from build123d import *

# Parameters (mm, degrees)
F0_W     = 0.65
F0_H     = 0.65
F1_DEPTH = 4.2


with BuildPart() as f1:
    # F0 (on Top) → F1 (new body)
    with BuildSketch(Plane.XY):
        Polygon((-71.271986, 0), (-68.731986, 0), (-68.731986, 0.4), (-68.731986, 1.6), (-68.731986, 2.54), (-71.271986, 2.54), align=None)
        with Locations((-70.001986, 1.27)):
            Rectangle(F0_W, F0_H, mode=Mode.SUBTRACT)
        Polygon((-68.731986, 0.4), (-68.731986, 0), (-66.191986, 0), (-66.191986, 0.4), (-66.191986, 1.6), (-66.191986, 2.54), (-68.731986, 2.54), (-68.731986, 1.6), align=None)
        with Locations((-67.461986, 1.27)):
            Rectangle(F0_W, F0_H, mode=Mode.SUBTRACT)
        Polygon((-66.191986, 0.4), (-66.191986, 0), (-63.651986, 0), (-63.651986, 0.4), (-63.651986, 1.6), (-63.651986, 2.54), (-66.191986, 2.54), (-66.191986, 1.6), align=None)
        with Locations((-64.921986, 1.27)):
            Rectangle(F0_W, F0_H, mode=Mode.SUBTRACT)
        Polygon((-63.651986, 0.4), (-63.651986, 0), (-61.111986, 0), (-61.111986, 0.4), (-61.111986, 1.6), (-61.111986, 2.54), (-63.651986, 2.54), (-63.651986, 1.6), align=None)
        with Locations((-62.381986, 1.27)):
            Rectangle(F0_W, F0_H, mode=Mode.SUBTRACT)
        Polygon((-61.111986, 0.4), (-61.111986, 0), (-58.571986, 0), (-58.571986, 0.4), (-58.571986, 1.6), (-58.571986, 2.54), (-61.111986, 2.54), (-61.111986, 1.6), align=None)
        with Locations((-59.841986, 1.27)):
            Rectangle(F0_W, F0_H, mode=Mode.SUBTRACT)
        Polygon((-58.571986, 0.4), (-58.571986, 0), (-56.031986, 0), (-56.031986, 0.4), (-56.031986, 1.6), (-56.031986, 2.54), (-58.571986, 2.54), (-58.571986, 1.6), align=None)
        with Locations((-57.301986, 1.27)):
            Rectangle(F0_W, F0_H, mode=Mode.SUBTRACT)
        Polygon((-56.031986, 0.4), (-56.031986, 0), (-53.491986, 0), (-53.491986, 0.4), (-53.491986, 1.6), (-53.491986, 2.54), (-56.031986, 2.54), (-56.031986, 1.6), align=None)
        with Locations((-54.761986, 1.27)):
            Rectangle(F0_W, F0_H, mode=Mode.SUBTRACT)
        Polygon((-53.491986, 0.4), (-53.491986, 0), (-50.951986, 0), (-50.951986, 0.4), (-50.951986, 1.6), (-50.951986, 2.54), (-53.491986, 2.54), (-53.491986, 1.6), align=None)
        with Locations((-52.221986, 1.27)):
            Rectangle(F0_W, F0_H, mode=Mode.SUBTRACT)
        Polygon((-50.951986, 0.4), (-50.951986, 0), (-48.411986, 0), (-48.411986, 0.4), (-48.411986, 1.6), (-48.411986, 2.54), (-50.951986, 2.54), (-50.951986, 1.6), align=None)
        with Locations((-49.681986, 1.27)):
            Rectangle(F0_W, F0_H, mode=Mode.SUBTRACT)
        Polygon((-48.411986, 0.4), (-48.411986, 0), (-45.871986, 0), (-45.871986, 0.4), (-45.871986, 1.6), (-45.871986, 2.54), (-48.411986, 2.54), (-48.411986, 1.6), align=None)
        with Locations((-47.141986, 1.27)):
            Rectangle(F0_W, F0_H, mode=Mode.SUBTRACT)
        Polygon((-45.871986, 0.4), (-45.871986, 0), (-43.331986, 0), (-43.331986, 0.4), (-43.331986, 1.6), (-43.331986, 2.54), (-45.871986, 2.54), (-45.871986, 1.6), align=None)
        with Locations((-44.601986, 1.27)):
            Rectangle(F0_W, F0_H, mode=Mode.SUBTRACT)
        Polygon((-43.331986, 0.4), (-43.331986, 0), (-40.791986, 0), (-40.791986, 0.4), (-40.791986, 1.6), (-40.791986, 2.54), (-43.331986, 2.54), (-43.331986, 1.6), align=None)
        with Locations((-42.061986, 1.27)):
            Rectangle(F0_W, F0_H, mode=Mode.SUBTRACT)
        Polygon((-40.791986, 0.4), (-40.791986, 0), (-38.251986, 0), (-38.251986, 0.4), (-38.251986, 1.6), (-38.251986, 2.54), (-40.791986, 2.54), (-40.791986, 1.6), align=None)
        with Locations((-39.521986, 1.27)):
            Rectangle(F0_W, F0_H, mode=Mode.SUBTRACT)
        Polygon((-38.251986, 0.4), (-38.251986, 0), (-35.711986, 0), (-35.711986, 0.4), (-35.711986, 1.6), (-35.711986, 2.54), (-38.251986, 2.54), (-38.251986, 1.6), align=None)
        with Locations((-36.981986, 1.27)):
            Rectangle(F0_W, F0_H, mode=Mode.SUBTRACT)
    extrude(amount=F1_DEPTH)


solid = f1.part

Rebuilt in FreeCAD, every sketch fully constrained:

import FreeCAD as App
import Part
import Sketcher
from FreeCAD import Vector
Q = App.Units.Quantity

doc = App.newDocument("Part")
params = doc.addObject("Spreadsheet::Sheet", "Params")
for row, (alias, value) in enumerate([
    ("sketch1_width", "1.4 in"),
    ("sketch1_height", "0.1 in"),
    ("pad1_length", "4.2 mm"),
], start=1):
    params.set(f"A{row}", alias)
    params.set(f"B{row}", "=" + value)
    params.setAlias(f"B{row}", alias)

body = doc.addObject("PartDesign::Body", "Body")

# Sketch on XY plane
sketch1 = body.newObject("Sketcher::SketchObject", "Sketch")
sketch1.AttachmentSupport = (doc.getObject("XY_Plane"), [""])
sketch1.MapMode = "FlatFace"
sketch1.addGeometry([
    Part.LineSegment(Vector(-71.3, 0, 0), Vector(-35.7, 0, 0)),  # 0
    Part.LineSegment(Vector(-35.7, 0, 0), Vector(-35.7, 2.5, 0)),  # 1
    Part.LineSegment(Vector(-35.7, 2.5, 0), Vector(-71.3, 2.5, 0)),  # 2
    Part.LineSegment(Vector(-71.3, 2.5, 0), Vector(-71.3, 0, 0)),  # 3
    Part.LineSegment(Vector(-69.7, 0.9, 0), Vector(-70.3, 0.9, 0)),  # 4
    Part.LineSegment(Vector(-70.3, 0.9, 0), Vector(-70.3, 1.6, 0)),  # 5
    Part.LineSegment(Vector(-70.3, 1.6, 0), Vector(-69.7, 1.6, 0)),  # 6
    Part.LineSegment(Vector(-69.7, 1.6, 0), Vector(-69.7, 0.9, 0)),  # 7
    Part.LineSegment(Vector(-67.1, 0.9, 0), Vector(-67.8, 0.9, 0)),  # 8
    Part.LineSegment(Vector(-67.8, 0.9, 0), Vector(-67.8, 1.6, 0)),  # 9
    Part.LineSegment(Vector(-67.8, 1.6, 0), Vector(-67.1, 1.6, 0)),  # 10
    Part.LineSegment(Vector(-67.1, 1.6, 0), Vector(-67.1, 0.9, 0)),  # 11
    Part.LineSegment(Vector(-64.6, 0.9, 0), Vector(-65.2, 0.9, 0)),  # 12
    Part.LineSegment(Vector(-65.2, 0.9, 0), Vector(-65.2, 1.6, 0)),  # 13
    Part.LineSegment(Vector(-65.2, 1.6, 0), Vector(-64.6, 1.6, 0)),  # 14
    Part.LineSegment(Vector(-64.6, 1.6, 0), Vector(-64.6, 0.9, 0)),  # 15
    Part.LineSegment(Vector(-62.1, 0.9, 0), Vector(-62.7, 0.9, 0)),  # 16
    Part.LineSegment(Vector(-62.7, 0.9, 0), Vector(-62.7, 1.6, 0)),  # 17
    Part.LineSegment(Vector(-62.7, 1.6, 0), Vector(-62.1, 1.6, 0)),  # 18
    Part.LineSegment(Vector(-62.1, 1.6, 0), Vector(-62.1, 0.9, 0)),  # 19
    Part.LineSegment(Vector(-59.5, 0.9, 0), Vector(-60.2, 0.9, 0)),  # 20
    Part.LineSegment(Vector(-60.2, 0.9, 0), Vector(-60.2, 1.6, 0)),  # 21
    Part.LineSegment(Vector(-60.2, 1.6, 0), Vector(-59.5, 1.6, 0)),  # 22
    Part.LineSegment(Vector(-59.5, 1.6, 0), Vector(-59.5, 0.9, 0)),  # 23
    Part.LineSegment(Vector(-57, 0.9, 0), Vector(-57.6, 0.9, 0)),  # 24
    Part.LineSegment(Vector(-57.6, 0.9, 0), Vector(-57.6, 1.6, 0)),  # 25
    Part.LineSegment(Vector(-57.6, 1.6, 0), Vector(-57, 1.6, 0)),  # 26
    Part.LineSegment(Vector(-57, 1.6, 0), Vector(-57, 0.9, 0)),  # 27
    Part.LineSegment(Vector(-54.4, 0.9, 0), Vector(-55.1, 0.9, 0)),  # 28
    Part.LineSegment(Vector(-55.1, 0.9, 0), Vector(-55.1, 1.6, 0)),  # 29
    Part.LineSegment(Vector(-55.1, 1.6, 0), Vector(-54.4, 1.6, 0)),  # 30
    Part.LineSegment(Vector(-54.4, 1.6, 0), Vector(-54.4, 0.9, 0)),  # 31
    Part.LineSegment(Vector(-51.9, 0.9, 0), Vector(-52.5, 0.9, 0)),  # 32
    Part.LineSegment(Vector(-52.5, 0.9, 0), Vector(-52.5, 1.6, 0)),  # 33
    Part.LineSegment(Vector(-52.5, 1.6, 0), Vector(-51.9, 1.6, 0)),  # 34
    Part.LineSegment(Vector(-51.9, 1.6, 0), Vector(-51.9, 0.9, 0)),  # 35
    Part.LineSegment(Vector(-49.4, 0.9, 0), Vector(-50, 0.9, 0)),  # 36
    Part.LineSegment(Vector(-50, 0.9, 0), Vector(-50, 1.6, 0)),  # 37
    Part.LineSegment(Vector(-50, 1.6, 0), Vector(-49.4, 1.6, 0)),  # 38
    Part.LineSegment(Vector(-49.4, 1.6, 0), Vector(-49.4, 0.9, 0)),  # 39
    Part.LineSegment(Vector(-46.8, 0.9, 0), Vector(-47.5, 0.9, 0)),  # 40
    Part.LineSegment(Vector(-47.5, 0.9, 0), Vector(-47.5, 1.6, 0)),  # 41
    Part.LineSegment(Vector(-47.5, 1.6, 0), Vector(-46.8, 1.6, 0)),  # 42
    Part.LineSegment(Vector(-46.8, 1.6, 0), Vector(-46.8, 0.9, 0)),  # 43
    Part.LineSegment(Vector(-44.3, 0.9, 0), Vector(-44.9, 0.9, 0)),  # 44
    Part.LineSegment(Vector(-44.9, 0.9, 0), Vector(-44.9, 1.6, 0)),  # 45
    Part.LineSegment(Vector(-44.9, 1.6, 0), Vector(-44.3, 1.6, 0)),  # 46
    Part.LineSegment(Vector(-44.3, 1.6, 0), Vector(-44.3, 0.9, 0)),  # 47
    Part.LineSegment(Vector(-41.7, 0.9, 0), Vector(-42.4, 0.9, 0)),  # 48
    Part.LineSegment(Vector(-42.4, 0.9, 0), Vector(-42.4, 1.6, 0)),  # 49
    Part.LineSegment(Vector(-42.4, 1.6, 0), Vector(-41.7, 1.6, 0)),  # 50
    Part.LineSegment(Vector(-41.7, 1.6, 0), Vector(-41.7, 0.9, 0)),  # 51
    Part.LineSegment(Vector(-39.2, 0.9, 0), Vector(-39.8, 0.9, 0)),  # 52
    Part.LineSegment(Vector(-39.8, 0.9, 0), Vector(-39.8, 1.6, 0)),  # 53
    Part.LineSegment(Vector(-39.8, 1.6, 0), Vector(-39.2, 1.6, 0)),  # 54
    Part.LineSegment(Vector(-39.2, 1.6, 0), Vector(-39.2, 0.9, 0)),  # 55
    Part.LineSegment(Vector(-36.7, 0.9, 0), Vector(-37.3, 0.9, 0)),  # 56
    Part.LineSegment(Vector(-37.3, 0.9, 0), Vector(-37.3, 1.6, 0)),  # 57
    Part.LineSegment(Vector(-37.3, 1.6, 0), Vector(-36.7, 1.6, 0)),  # 58
    Part.LineSegment(Vector(-36.7, 1.6, 0), Vector(-36.7, 0.9, 0)),  # 59
], False)
sketch1.addConstraint([
    Sketcher.Constraint("Coincident", 0, 2, 1, 1),
    Sketcher.Constraint("Coincident", 1, 2, 2, 1),
    Sketcher.Constraint("Coincident", 2, 2, 3, 1),
    Sketcher.Constraint("Coincident", 3, 2, 0, 1),
    Sketcher.Constraint("Coincident", 4, 2, 5, 1),
    Sketcher.Constraint("Coincident", 5, 2, 6, 1),
    Sketcher.Constraint("Coincident", 6, 2, 7, 1),
    Sketcher.Constraint("Coincident", 7, 2, 4, 1),
    Sketcher.Constraint("Coincident", 8, 2, 9, 1),
    Sketcher.Constraint("Coincident", 9, 2, 10, 1),
    Sketcher.Constraint("Coincident", 10, 2, 11, 1),
    Sketcher.Constraint("Coincident", 11, 2, 8, 1),
    Sketcher.Constraint("Coincident", 12, 2, 13, 1),
    Sketcher.Constraint("Coincident", 13, 2, 14, 1),
    Sketcher.Constraint("Coincident", 14, 2, 15, 1),
    Sketcher.Constraint("Coincident", 15, 2, 12, 1),
    Sketcher.Constraint("Coincident", 16, 2, 17, 1),
    Sketcher.Constraint("Coincident", 17, 2, 18, 1),
    Sketcher.Constraint("Coincident", 18, 2, 19, 1),
    Sketcher.Constraint("Coincident", 19, 2, 16, 1),
    Sketcher.Constraint("Coincident", 20, 2, 21, 1),
    Sketcher.Constraint("Coincident", 21, 2, 22, 1),
    Sketcher.Constraint("Coincident", 22, 2, 23, 1),
    Sketcher.Constraint("Coincident", 23, 2, 20, 1),
    Sketcher.Constraint("Coincident", 24, 2, 25, 1),
    Sketcher.Constraint("Coincident", 25, 2, 26, 1),
    Sketcher.Constraint("Coincident", 26, 2, 27, 1),
    Sketcher.Constraint("Coincident", 27, 2, 24, 1),
    Sketcher.Constraint("Coincident", 28, 2, 29, 1),
    Sketcher.Constraint("Coincident", 29, 2, 30, 1),
    Sketcher.Constraint("Coincident", 30, 2, 31, 1),
    Sketcher.Constraint("Coincident", 31, 2, 28, 1),
    Sketcher.Constraint("Coincident", 32, 2, 33, 1),
    Sketcher.Constraint("Coincident", 33, 2, 34, 1),
    Sketcher.Constraint("Coincident", 34, 2, 35, 1),
    Sketcher.Constraint("Coincident", 35, 2, 32, 1),
    Sketcher.Constraint("Coincident", 36, 2, 37, 1),
    Sketcher.Constraint("Coincident", 37, 2, 38, 1),
    Sketcher.Constraint("Coincident", 38, 2, 39, 1),
    Sketcher.Constraint("Coincident", 39, 2, 36, 1),
    Sketcher.Constraint("Coincident", 40, 2, 41, 1),
    Sketcher.Constraint("Coincident", 41, 2, 42, 1),
    Sketcher.Constraint("Coincident", 42, 2, 43, 1),
    Sketcher.Constraint("Coincident", 43, 2, 40, 1),
    Sketcher.Constraint("Coincident", 44, 2, 45, 1),
    Sketcher.Constraint("Coincident", 45, 2, 46, 1),
    Sketcher.Constraint("Coincident", 46, 2, 47, 1),
    Sketcher.Constraint("Coincident", 47, 2, 44, 1),
    Sketcher.Constraint("Coincident", 48, 2, 49, 1),
    Sketcher.Constraint("Coincident", 49, 2, 50, 1),
    Sketcher.Constraint("Coincident", 50, 2, 51, 1),
    Sketcher.Constraint("Coincident", 51, 2, 48, 1),
    Sketcher.Constraint("Coincident", 52, 2, 53, 1),
    Sketcher.Constraint("Coincident", 53, 2, 54, 1),
    Sketcher.Constraint("Coincident", 54, 2, 55, 1),
    Sketcher.Constraint("Coincident", 55, 2, 52, 1),
    Sketcher.Constraint("Coincident", 56, 2, 57, 1),
    Sketcher.Constraint("Coincident", 57, 2, 58, 1),
    Sketcher.Constraint("Coincident", 58, 2, 59, 1),
    Sketcher.Constraint("Coincident", 59, 2, 56, 1),
    Sketcher.Constraint("Horizontal", 0),
    Sketcher.Constraint("Vertical", 1),
    Sketcher.Constraint("Horizontal", 2),
    Sketcher.Constraint("Vertical", 3),
    Sketcher.Constraint("Horizontal", 4),
    Sketcher.Constraint("Vertical", 5),
    Sketcher.Constraint("Horizontal", 6),
    Sketcher.Constraint("Vertical", 7),
    Sketcher.Constraint("Horizontal", 8),
    Sketcher.Constraint("Vertical", 9),
    Sketcher.Constraint("Horizontal", 10),
    Sketcher.Constraint("Vertical", 11),
    Sketcher.Constraint("Horizontal", 12),
    Sketcher.Constraint("Vertical", 13),
    Sketcher.Constraint("Horizontal", 14),
    Sketcher.Constraint("Vertical", 15),
    Sketcher.Constraint("Horizontal", 16),
    Sketcher.Constraint("Vertical", 17),
    Sketcher.Constraint("Horizontal", 18),
    Sketcher.Constraint("Vertical", 19),
    Sketcher.Constraint("Horizontal", 20),
    Sketcher.Constraint("Vertical", 21),
    Sketcher.Constraint("Horizontal", 22),
    Sketcher.Constraint("Vertical", 23),
    Sketcher.Constraint("Horizontal", 24),
    Sketcher.Constraint("Vertical", 25),
    Sketcher.Constraint("Horizontal", 26),
    Sketcher.Constraint("Vertical", 27),
    Sketcher.Constraint("Horizontal", 28),
    Sketcher.Constraint("Vertical", 29),
    Sketcher.Constraint("Horizontal", 30),
    Sketcher.Constraint("Vertical", 31),
    Sketcher.Constraint("Horizontal", 32),
    Sketcher.Constraint("Vertical", 33),
    Sketcher.Constraint("Horizontal", 34),
    Sketcher.Constraint("Vertical", 35),
    Sketcher.Constraint("Horizontal", 36),
    Sketcher.Constraint("Vertical", 37),
    Sketcher.Constraint("Horizontal", 38),
    Sketcher.Constraint("Vertical", 39),
    Sketcher.Constraint("Horizontal", 40),
    Sketcher.Constraint("Vertical", 41),
    Sketcher.Constraint("Horizontal", 42),
    Sketcher.Constraint("Vertical", 43),
    Sketcher.Constraint("Horizontal", 44),
    Sketcher.Constraint("Vertical", 45),
    Sketcher.Constraint("Horizontal", 46),
    Sketcher.Constraint("Vertical", 47),
    Sketcher.Constraint("Horizontal", 48),
    Sketcher.Constraint("Vertical", 49),
    Sketcher.Constraint("Horizontal", 50),
    Sketcher.Constraint("Vertical", 51),
    Sketcher.Constraint("Horizontal", 52),
    Sketcher.Constraint("Vertical", 53),
    Sketcher.Constraint("Horizontal", 54),
    Sketcher.Constraint("Vertical", 55),
    Sketcher.Constraint("Horizontal", 56),
    Sketcher.Constraint("Vertical", 57),
    Sketcher.Constraint("Horizontal", 58),
    Sketcher.Constraint("Vertical", 59),
    Sketcher.Constraint("PointOnObject", 0, 2, -1),
    Sketcher.Constraint("Horizontal", 7, 2, 8, 2),
    Sketcher.Constraint("Horizontal", 6, 2, 9, 2),
    Sketcher.Constraint("Horizontal", 11, 2, 12, 2),
    Sketcher.Constraint("Horizontal", 10, 2, 13, 2),
    Sketcher.Constraint("Horizontal", 15, 2, 16, 2),
    Sketcher.Constraint("Horizontal", 14, 2, 17, 2),
    Sketcher.Constraint("Horizontal", 19, 2, 20, 2),
    Sketcher.Constraint("Horizontal", 18, 2, 21, 2),
    Sketcher.Constraint("Horizontal", 23, 2, 24, 2),
    Sketcher.Constraint("Horizontal", 22, 2, 25, 2),
    Sketcher.Constraint("Horizontal", 27, 2, 28, 2),
    Sketcher.Constraint("Horizontal", 26, 2, 29, 2),
    Sketcher.Constraint("Horizontal", 31, 2, 32, 2),
    Sketcher.Constraint("Horizontal", 30, 2, 33, 2),
    Sketcher.Constraint("Horizontal", 35, 2, 36, 2),
    Sketcher.Constraint("Horizontal", 34, 2, 37, 2),
    Sketcher.Constraint("Horizontal", 39, 2, 40, 2),
    Sketcher.Constraint("Horizontal", 38, 2, 41, 2),
    Sketcher.Constraint("Horizontal", 43, 2, 44, 2),
    Sketcher.Constraint("Horizontal", 42, 2, 45, 2),
    Sketcher.Constraint("Horizontal", 47, 2, 48, 2),
    Sketcher.Constraint("Horizontal", 46, 2, 49, 2),
    Sketcher.Constraint("Horizontal", 51, 2, 52, 2),
    Sketcher.Constraint("Horizontal", 50, 2, 53, 2),
    Sketcher.Constraint("Horizontal", 55, 2, 56, 2),
    Sketcher.Constraint("Horizontal", 54, 2, 57, 2),
    Sketcher.Constraint("Equal", 6, 8),
    Sketcher.Constraint("Equal", 10, 12),
    Sketcher.Constraint("Equal", 14, 16),
    Sketcher.Constraint("Equal", 18, 20),
    Sketcher.Constraint("Equal", 22, 24),
    Sketcher.Constraint("Equal", 26, 28),
    Sketcher.Constraint("Equal", 30, 32),
    Sketcher.Constraint("Equal", 34, 36),
    Sketcher.Constraint("Equal", 38, 40),
    Sketcher.Constraint("Equal", 42, 44),
    Sketcher.Constraint("Equal", 46, 48),
    Sketcher.Constraint("Equal", 50, 52),
    Sketcher.Constraint("Equal", 54, 56),
    Sketcher.Constraint("Equal", 58, 5),
    Sketcher.Constraint("DistanceX", 0, 1, 0, 2, Q("1.4 in")),
    Sketcher.Constraint("DistanceY", 1, 1, 1, 2, Q("0.1 in")),
    Sketcher.Constraint("DistanceX", 4, 2, 8, 2, Q("0.1 in")),
    Sketcher.Constraint("DistanceX", 8, 2, 12, 2, Q("0.1 in")),
    Sketcher.Constraint("DistanceX", 12, 2, 16, 2, Q("0.1 in")),
    Sketcher.Constraint("DistanceX", 16, 2, 20, 2, Q("0.1 in")),
    Sketcher.Constraint("DistanceX", 20, 2, 24, 2, Q("0.1 in")),
    Sketcher.Constraint("DistanceX", 24, 2, 28, 2, Q("0.1 in")),
    Sketcher.Constraint("DistanceX", 28, 2, 32, 2, Q("0.1 in")),
    Sketcher.Constraint("DistanceX", 32, 2, 36, 2, Q("0.1 in")),
    Sketcher.Constraint("DistanceX", 36, 2, 40, 2, Q("0.1 in")),
    Sketcher.Constraint("DistanceX", 40, 2, 44, 2, Q("0.1 in")),
    Sketcher.Constraint("DistanceX", 44, 2, 48, 2, Q("0.1 in")),
    Sketcher.Constraint("DistanceX", 48, 2, 52, 2, Q("0.1 in")),
    Sketcher.Constraint("DistanceX", 52, 2, 56, 2, Q("0.1 in")),
    Sketcher.Constraint("DistanceX", 4, 2, 4, 1, Q("0.65 mm")),
    Sketcher.Constraint("DistanceY", -1, 1, 4, 2, Q("0.945 mm")),
    Sketcher.Constraint("DistanceX", 3, 2, 4, 2, Q("0.945 mm")),
    Sketcher.Constraint("DistanceX", 0, 2, -1, 1, Q("35.711986 mm")),
])
sketch1.setExpression("Constraints[161]", "Params.sketch1_width")
sketch1.setExpression("Constraints[162]", "Params.sketch1_height")
pad1 = body.newObject("PartDesign::Pad", "Pad")
pad1.Profile = sketch1
pad1.setExpression("Length", "Params.pad1_length")

doc.recompute()
